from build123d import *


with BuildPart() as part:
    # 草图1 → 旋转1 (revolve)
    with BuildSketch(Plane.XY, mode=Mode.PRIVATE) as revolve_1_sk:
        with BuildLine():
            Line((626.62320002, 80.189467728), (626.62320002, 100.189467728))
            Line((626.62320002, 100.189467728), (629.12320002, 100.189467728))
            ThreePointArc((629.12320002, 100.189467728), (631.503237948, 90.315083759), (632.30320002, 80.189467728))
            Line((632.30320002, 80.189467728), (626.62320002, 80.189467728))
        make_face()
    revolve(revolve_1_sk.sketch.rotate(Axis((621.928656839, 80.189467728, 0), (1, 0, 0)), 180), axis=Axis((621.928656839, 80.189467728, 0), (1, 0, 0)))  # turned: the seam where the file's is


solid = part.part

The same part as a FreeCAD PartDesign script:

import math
import FreeCAD as App
import Part
import Sketcher
from FreeCAD import Vector
Q = App.Units.Quantity

doc = App.newDocument("Part")
params = doc.addObject("Spreadsheet::Sheet", "Params")
for row, (alias, value) in enumerate([
    ("sketch1_height", "20 mm"),
    ("sketch1_width", "2.5 mm"),
    ("sketch1_width2", "5.68 mm"),
    ("revolution_angle", "360 deg"),
], start=1):
    params.set(f"A{row}", alias)
    params.set(f"B{row}", "=" + value)
    params.setAlias(f"B{row}", alias)

body = doc.addObject("PartDesign::Body", "Body")

# Sketch on XY plane
sketch1 = body.newObject("Sketcher::SketchObject", "Sketch")
sketch1.AttachmentSupport = (doc.getObject("XY_Plane"), [""])
sketch1.MapMode = "FlatFace"
sketch1.addGeometry([
    Part.LineSegment(Vector(626.6, 100.2, 0), Vector(626.6, 80.2, 0)),
    Part.LineSegment(Vector(626.6, 80.2, 0), Vector(632.3, 80.2, 0)),
    Part.ArcOfCircle(Part.Circle(Vector(567.8, 80.2, 0), Vector(0, 0, 1), 64.5), math.radians(0), math.radians(18.07)),
    Part.LineSegment(Vector(629.1, 100.2, 0), Vector(626.6, 100.2, 0)),
], False)
sketch1.addGeometry(Part.LineSegment(Vector(567.8, 80.2, 0), Vector(632.3, 80.2, 0)), True)  # axis
sketch1.addConstraint([
    Sketcher.Constraint("Coincident", 0, 2, 1, 1),
    Sketcher.Constraint("Coincident", 1, 2, 2, 1),
    Sketcher.Constraint("Coincident", 2, 2, 3, 1),
    Sketcher.Constraint("Coincident", 3, 2, 0, 1),
    Sketcher.Constraint("Vertical", 0),
    Sketcher.Constraint("Horizontal", 1),
    Sketcher.Constraint("Horizontal", 3),
    Sketcher.Constraint("Horizontal", 4),
    Sketcher.Constraint("Coincident", 4, 1, 2, 3),
    Sketcher.Constraint("Coincident", 4, 2, 1, 2),
    Sketcher.Constraint("DistanceY", 0, 2, 0, 1, Q("20 mm")),
    Sketcher.Constraint("DistanceX", 3, 2, 3, 1, Q("2.5 mm")),
    Sketcher.Constraint("DistanceX", 1, 1, 1, 2, Q("5.68 mm")),
    Sketcher.Constraint("DistanceX", -1, 1, 0, 2, Q("626.6232 mm")),
    Sketcher.Constraint("DistanceY", -1, 1, 2, 3, Q("80.189468 mm")),
])
sketch1.setExpression("Constraints[10]", "Params.sketch1_height")
sketch1.setExpression("Constraints[11]", "Params.sketch1_width")
sketch1.setExpression("Constraints[12]", "Params.sketch1_width2")
revolution = body.newObject("PartDesign::Revolution", "Revolution")
revolution.Profile = sketch1
revolution.ReferenceAxis = (sketch1, ["Axis0"])
revolution.setExpression("Angle", "Params.revolution_angle")

doc.recompute()
